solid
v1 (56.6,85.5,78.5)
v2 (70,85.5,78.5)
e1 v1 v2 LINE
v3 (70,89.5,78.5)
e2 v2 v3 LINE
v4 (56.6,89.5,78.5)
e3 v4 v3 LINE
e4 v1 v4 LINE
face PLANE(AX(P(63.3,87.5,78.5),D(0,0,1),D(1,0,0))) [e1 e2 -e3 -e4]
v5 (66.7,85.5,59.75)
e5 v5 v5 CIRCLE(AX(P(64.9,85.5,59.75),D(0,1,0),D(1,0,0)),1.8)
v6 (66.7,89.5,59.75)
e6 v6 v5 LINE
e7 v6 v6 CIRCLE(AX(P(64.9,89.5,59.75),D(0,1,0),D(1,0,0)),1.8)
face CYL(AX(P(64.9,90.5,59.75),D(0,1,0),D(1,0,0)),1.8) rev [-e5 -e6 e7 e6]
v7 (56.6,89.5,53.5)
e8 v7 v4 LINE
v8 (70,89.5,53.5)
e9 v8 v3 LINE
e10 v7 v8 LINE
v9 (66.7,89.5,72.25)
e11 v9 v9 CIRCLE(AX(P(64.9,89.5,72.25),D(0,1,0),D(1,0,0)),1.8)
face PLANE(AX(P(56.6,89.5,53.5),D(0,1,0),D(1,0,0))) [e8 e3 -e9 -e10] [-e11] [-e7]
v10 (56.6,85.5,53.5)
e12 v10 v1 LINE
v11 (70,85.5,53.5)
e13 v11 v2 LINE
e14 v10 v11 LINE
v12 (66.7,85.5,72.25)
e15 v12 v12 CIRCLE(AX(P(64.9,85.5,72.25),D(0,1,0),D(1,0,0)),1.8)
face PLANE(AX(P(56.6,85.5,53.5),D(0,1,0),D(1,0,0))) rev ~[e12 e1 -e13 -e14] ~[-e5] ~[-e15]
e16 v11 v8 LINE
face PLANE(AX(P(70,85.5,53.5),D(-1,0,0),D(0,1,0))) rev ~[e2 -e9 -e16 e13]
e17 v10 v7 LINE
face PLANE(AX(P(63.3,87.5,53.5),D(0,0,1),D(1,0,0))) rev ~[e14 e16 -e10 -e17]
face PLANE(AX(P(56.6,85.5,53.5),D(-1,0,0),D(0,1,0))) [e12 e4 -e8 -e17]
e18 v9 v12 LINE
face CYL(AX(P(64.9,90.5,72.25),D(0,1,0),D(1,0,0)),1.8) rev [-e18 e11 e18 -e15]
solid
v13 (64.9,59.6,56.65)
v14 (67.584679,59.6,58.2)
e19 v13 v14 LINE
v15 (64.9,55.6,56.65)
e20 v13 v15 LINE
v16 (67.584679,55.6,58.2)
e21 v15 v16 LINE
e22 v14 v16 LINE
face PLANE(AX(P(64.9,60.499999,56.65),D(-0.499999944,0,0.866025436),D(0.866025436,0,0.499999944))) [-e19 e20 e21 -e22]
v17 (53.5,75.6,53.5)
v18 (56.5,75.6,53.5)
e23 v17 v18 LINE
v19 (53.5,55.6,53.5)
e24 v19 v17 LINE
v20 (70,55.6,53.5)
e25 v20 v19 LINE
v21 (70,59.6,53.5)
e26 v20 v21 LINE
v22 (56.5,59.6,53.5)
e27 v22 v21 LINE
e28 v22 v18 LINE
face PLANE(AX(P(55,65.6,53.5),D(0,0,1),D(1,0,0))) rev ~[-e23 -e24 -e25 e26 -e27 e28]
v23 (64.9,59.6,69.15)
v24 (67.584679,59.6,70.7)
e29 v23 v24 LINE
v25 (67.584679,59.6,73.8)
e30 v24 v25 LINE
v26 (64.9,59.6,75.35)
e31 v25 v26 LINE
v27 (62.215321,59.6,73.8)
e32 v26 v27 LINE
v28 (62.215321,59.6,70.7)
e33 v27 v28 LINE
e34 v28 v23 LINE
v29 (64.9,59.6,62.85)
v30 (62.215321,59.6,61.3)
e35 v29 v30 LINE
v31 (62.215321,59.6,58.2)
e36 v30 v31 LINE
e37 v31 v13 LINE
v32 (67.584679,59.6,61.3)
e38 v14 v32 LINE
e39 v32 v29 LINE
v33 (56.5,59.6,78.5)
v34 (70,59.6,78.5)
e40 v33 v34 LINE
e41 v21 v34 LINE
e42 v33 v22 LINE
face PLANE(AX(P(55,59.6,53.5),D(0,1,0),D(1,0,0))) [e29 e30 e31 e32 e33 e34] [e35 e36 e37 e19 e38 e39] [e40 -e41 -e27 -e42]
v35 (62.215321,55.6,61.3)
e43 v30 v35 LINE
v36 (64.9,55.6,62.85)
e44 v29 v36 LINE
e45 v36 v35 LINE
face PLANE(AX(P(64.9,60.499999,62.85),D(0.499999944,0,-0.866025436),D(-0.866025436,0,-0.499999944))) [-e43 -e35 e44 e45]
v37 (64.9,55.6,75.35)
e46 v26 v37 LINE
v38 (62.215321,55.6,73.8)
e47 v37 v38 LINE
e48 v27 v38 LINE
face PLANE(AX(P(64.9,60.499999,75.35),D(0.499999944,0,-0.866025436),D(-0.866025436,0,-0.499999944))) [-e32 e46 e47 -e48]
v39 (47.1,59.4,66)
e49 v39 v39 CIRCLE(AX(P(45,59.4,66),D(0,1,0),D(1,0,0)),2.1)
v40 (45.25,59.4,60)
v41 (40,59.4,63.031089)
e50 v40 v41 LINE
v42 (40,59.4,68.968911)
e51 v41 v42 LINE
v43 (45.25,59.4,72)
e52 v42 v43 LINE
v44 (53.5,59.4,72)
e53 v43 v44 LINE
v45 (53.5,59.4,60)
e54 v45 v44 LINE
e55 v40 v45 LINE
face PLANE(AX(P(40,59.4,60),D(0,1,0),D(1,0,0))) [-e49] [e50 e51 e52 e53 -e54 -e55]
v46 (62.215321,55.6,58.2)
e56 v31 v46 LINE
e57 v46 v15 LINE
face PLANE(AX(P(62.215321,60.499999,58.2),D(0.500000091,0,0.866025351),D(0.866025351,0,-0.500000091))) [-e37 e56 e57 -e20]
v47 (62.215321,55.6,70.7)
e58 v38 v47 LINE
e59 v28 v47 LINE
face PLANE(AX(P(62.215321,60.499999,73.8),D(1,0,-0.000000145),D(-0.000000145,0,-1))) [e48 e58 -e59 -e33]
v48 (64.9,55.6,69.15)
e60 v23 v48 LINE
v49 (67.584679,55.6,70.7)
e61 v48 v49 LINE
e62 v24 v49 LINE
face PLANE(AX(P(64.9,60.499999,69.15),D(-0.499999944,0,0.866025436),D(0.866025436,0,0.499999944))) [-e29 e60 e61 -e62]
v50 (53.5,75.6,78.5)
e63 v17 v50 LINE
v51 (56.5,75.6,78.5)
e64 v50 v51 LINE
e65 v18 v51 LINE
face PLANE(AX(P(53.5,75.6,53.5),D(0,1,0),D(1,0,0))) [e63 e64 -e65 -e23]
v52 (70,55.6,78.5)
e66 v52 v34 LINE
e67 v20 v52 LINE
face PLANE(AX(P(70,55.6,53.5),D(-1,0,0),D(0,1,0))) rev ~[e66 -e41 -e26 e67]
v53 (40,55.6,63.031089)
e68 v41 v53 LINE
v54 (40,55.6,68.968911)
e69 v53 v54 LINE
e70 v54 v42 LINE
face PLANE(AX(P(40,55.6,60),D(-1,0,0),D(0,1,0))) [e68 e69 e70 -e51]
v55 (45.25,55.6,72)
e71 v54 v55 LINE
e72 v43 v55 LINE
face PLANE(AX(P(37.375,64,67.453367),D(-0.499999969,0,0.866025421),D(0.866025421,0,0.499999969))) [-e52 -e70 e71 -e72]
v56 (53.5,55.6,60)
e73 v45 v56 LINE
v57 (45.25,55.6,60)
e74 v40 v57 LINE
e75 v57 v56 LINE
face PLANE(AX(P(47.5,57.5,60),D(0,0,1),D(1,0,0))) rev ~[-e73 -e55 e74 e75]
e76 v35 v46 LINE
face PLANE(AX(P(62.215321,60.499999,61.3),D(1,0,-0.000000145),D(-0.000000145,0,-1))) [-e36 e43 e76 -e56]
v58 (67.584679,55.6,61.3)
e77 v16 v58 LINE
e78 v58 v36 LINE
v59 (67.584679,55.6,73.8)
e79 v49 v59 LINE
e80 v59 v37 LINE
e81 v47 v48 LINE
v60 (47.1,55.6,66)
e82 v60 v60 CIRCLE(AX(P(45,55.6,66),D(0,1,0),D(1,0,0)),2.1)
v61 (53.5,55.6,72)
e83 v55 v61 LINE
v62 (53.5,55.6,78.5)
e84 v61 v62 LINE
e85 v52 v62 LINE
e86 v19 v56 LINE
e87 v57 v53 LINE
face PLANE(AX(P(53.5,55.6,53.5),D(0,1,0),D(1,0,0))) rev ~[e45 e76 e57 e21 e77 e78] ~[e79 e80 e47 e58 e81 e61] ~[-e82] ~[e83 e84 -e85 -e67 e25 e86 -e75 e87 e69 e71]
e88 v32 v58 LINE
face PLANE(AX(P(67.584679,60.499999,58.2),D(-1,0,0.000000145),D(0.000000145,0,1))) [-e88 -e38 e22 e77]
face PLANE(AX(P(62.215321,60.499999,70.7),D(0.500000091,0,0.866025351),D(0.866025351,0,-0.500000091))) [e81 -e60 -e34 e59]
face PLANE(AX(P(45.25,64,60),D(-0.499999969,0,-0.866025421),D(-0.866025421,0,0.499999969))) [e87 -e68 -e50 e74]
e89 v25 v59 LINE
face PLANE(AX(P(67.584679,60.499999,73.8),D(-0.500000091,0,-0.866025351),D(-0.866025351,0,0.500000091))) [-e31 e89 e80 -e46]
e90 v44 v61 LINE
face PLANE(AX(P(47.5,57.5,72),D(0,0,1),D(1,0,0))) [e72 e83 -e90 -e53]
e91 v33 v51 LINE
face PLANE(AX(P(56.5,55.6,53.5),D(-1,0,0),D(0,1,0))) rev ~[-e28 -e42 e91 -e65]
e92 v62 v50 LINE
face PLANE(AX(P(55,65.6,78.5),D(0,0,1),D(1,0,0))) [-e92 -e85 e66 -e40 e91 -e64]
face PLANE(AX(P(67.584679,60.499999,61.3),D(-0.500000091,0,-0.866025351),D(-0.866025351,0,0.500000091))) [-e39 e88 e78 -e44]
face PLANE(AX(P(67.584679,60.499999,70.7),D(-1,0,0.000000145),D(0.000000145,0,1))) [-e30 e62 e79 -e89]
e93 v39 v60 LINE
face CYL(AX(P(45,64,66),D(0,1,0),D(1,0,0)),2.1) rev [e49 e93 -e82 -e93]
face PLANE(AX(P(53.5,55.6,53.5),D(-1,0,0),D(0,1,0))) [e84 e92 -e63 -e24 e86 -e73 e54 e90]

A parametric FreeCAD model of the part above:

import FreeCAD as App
import Part
import Sketcher
Q = App.Units.Quantity


def add_polygon(sketch, points):
    """Adds a closed chain of lines whose ends are joined by coincident constraints."""
    first, n = sketch.GeometryCount, len(points)
    for a, b in zip(points, points[1:] + points[:1]):
        sketch.addGeometry(Part.LineSegment(App.Vector(*a, 0), App.Vector(*b, 0)), False)
    for i in range(n):
        sketch.addConstraint(Sketcher.Constraint("Coincident", first + i, 2, first + (i + 1) % n, 1))

doc = App.newDocument("Part")
body = doc.addObject("PartDesign::Body", "Body")

# Sketch on XZ plane
sketch1 = body.newObject("Sketcher::SketchObject", "Sketch")
sketch1.AttachmentSupport = (doc.getObject("XZ_Plane"), [""])
sketch1.MapMode = "FlatFace"
sketch1.AttachmentOffset = App.Placement(App.Vector(0, 0, -64), App.Rotation())
add_polygon(sketch1, [(45.25, 72), (37.375, 76.546633), (37.375, 67.453367)])  # lines 0-2
sketch1.addConstraint([
    Sketcher.Constraint("Vertical", 1),
    Sketcher.Constraint("Equal", 0, 2),
    Sketcher.Constraint("Angle", 0, Q("150.000002 deg")),
    Sketcher.Constraint("DistanceY", -1, 1, 2, 2, 72.0),
    Sketcher.Constraint("DistanceX", -1, 1, 2, 2, 45.25),
    Sketcher.Constraint("DistanceX", -1, 1, 0, 2, 37.375),
])
pad1 = body.newObject("PartDesign::Pad", "Pad")
pad1.Profile = sketch1
pad1.Length = 13
body2 = doc.addObject("PartDesign::Body", "Body001")

# Sketch on XZ plane
sketch2 = body2.newObject("Sketcher::SketchObject", "Sketch001")
sketch2.AttachmentSupport = (doc.getObject("XZ_Plane001"), [""])
sketch2.MapMode = "FlatFace"
sketch2.AttachmentOffset = App.Placement(App.Vector(0, 0, -64), App.Rotation())
add_polygon(sketch2, [(45.25, 60), (37.375, 64.546633), (37.375, 55.453367)])  # lines 0-2
sketch2.addConstraint([
    Sketcher.Constraint("Vertical", 1),
    Sketcher.Constraint("Equal", 0, 2),
    Sketcher.Constraint("Angle", 0, Q("150.000002 deg")),
    Sketcher.Constraint("DistanceY", -1, 1, 2, 2, 60.0),
    Sketcher.Constraint("DistanceX", -1, 1, 2, 2, 45.25),
    Sketcher.Constraint("DistanceX", -1, 1, 0, 2, 37.375),
])
pad2 = body2.newObject("PartDesign::Pad", "Pad001")
pad2.Profile = sketch2
pad2.Length = 13
body3 = doc.addObject("PartDesign::Body", "Body002")

# Sketch on XY plane
sketch3 = body3.newObject("Sketcher::SketchObject", "Sketch002")
sketch3.AttachmentSupport = (doc.getObject("XY_Plane002"), [""])
sketch3.MapMode = "FlatFace"
add_polygon(sketch3, [(3.1, 0), (1.55, 2.684679), (-1.55, 2.684679), (-3.1, 0), (-1.55, -2.684679), (1.55, -2.684679)])  # lines 0-5
sketch3.addConstraint([
    Sketcher.Constraint("Horizontal", 1),
    Sketcher.Constraint("Horizontal", 4),
    Sketcher.Constraint("Symmetric", 0, 2, 3, 2, -1, 1),
    Sketcher.Constraint("Symmetric", 2, 2, 5, 2, -1, 1),
    Sketcher.Constraint("PointOnObject", 2, 2, -1),
    Sketcher.Constraint("Parallel", 2, 5),
    Sketcher.Constraint("Vertical", 1, 2, 3, 2),
    Sketcher.Constraint("Angle", 0, Q("119.999998 deg")),
    Sketcher.Constraint("DistanceX", 1, 2, 1, 1, 3.1),
    Sketcher.Constraint("Distance", 0, 3.1),
])
pad3 = body3.newObject("PartDesign::Pad", "Pad002")
pad3.Profile = sketch3
pad3.Length = 6
body4 = doc.addObject("PartDesign::Body", "Body003")
doc.recompute()

body3.Placement = App.Placement(App.Vector(0, 0, 0), App.Rotation(App.Vector(1, 0, 0), 90))
boolean = body4.newObject("PartDesign::Boolean", "Boolean")
boolean.Type = "Fuse"
boolean.addObjects([body3])
body5 = doc.addObject("PartDesign::Body", "Body004")
doc.recompute()

body4.Placement = App.Placement(App.Vector(0, 0, 0), App.Rotation(App.Vector(0, 1, 0), 30.000006))
boolean2 = body5.newObject("PartDesign::Boolean", "Boolean001")
boolean2.Type = "Fuse"
boolean2.addObjects([body4])
body6 = doc.addObject("PartDesign::Body", "Body005")
doc.recompute()

body5.Placement = App.Placement(App.Vector(64.9, 60.499999, 72.25), App.Rotation(App.Vector(0, 0, 1), 0))
boolean3 = body6.newObject("PartDesign::Boolean", "Boolean002")
boolean3.Type = "Fuse"
boolean3.addObjects([body5])
body7 = doc.addObject("PartDesign::Body", "Body006")

# Sketch on XZ plane
sketch4 = body7.newObject("Sketcher::SketchObject", "Sketch003")
sketch4.AttachmentSupport = (doc.getObject("XZ_Plane006"), [""])
sketch4.MapMode = "FlatFace"
sketch4.AttachmentOffset = App.Placement(App.Vector(0, 0, -90.5), App.Rotation())
sketch4.addGeometry(Part.Circle(App.Vector(64.9, 72.25, 0), App.Vector(0, 0, 1), 1.8), False)
sketch4.addConstraint([
    Sketcher.Constraint("Diameter", 0, 3.6),
    Sketcher.Constraint("DistanceX", -1, 1, 0, 3, 64.9),
    Sketcher.Constraint("DistanceY", -1, 1, 0, 3, 72.25),
])
pad4 = body7.newObject("PartDesign::Pad", "Pad003")
pad4.Profile = sketch4
pad4.Length = 6
body8 = doc.addObject("PartDesign::Body", "Body007")

# Sketch on XY plane
sketch5 = body8.newObject("Sketcher::SketchObject", "Sketch004")
sketch5.AttachmentSupport = (doc.getObject("XY_Plane007"), [""])
sketch5.MapMode = "FlatFace"
add_polygon(sketch5, [(3.1, 0), (1.55, 2.684679), (-1.55, 2.684679), (-3.1, 0), (-1.55, -2.684679), (1.55, -2.684679)])  # lines 0-5
sketch5.addConstraint([
    Sketcher.Constraint("Horizontal", 1),
    Sketcher.Constraint("Horizontal", 4),
    Sketcher.Constraint("Symmetric", 0, 2, 3, 2, -1, 1),
    Sketcher.Constraint("Symmetric", 2, 2, 5, 2, -1, 1),
    Sketcher.Constraint("PointOnObject", 2, 2, -1),
    Sketcher.Constraint("Parallel", 2, 5),
    Sketcher.Constraint("Vertical", 1, 2, 3, 2),
    Sketcher.Constraint("Angle", 0, Q("119.999998 deg")),
    Sketcher.Constraint("DistanceX", 1, 2, 1, 1, 3.1),
    Sketcher.Constraint("Distance", 0, 3.1),
])
pad5 = body8.newObject("PartDesign::Pad", "Pad004")
pad5.Profile = sketch5
pad5.Length = 6
body9 = doc.addObject("PartDesign::Body", "Body008")
doc.recompute()

body8.Placement = App.Placement(App.Vector(0, 0, 0), App.Rotation(App.Vector(1, 0, 0), 90))
boolean4 = body9.newObject("PartDesign::Boolean", "Boolean003")
boolean4.Type = "Fuse"
boolean4.addObjects([body8])
body10 = doc.addObject("PartDesign::Body", "Body009")
doc.recompute()

body9.Placement = App.Placement(App.Vector(0, 0, 0), App.Rotation(App.Vector(0, 1, 0), 30.000006))
boolean5 = body10.newObject("PartDesign::Boolean", "Boolean004")
boolean5.Type = "Fuse"
boolean5.addObjects([body9])
body11 = doc.addObject("PartDesign::Body", "Body010")
doc.recompute()

body10.Placement = App.Placement(App.Vector(64.9, 60.499999, 59.75), App.Rotation(App.Vector(0, 0, 1), 0))
boolean6 = body11.newObject("PartDesign::Boolean", "Boolean005")
boolean6.Type = "Fuse"
boolean6.addObjects([body10])
body12 = doc.addObject("PartDesign::Body", "Body011")

# Sketch on XZ plane
sketch6 = body12.newObject("Sketcher::SketchObject", "Sketch005")
sketch6.AttachmentSupport = (doc.getObject("XZ_Plane011"), [""])
sketch6.MapMode = "FlatFace"
sketch6.AttachmentOffset = App.Placement(App.Vector(0, 0, -90.5), App.Rotation())
sketch6.addGeometry(Part.Circle(App.Vector(64.9, 59.75, 0), App.Vector(0, 0, 1), 1.8), False)
sketch6.addConstraint([
    Sketcher.Constraint("Diameter", 0, 3.6),
    Sketcher.Constraint("DistanceX", -1, 1, 0, 3, 64.9),
    Sketcher.Constraint("DistanceY", -1, 1, 0, 3, 59.75),
])
pad6 = body12.newObject("PartDesign::Pad", "Pad005")
pad6.Profile = sketch6
pad6.Length = 6
body13 = doc.addObject("PartDesign::Body", "Body012")
body13.AllowCompound = True

# Sketch on XZ plane
sketch7 = body13.newObject("Sketcher::SketchObject", "Sketch006")
sketch7.AttachmentSupport = (doc.getObject("XZ_Plane012"), [""])
sketch7.MapMode = "FlatFace"
sketch7.AttachmentOffset = App.Placement(App.Vector(0, 0, -64), App.Rotation())
sketch7.addGeometry(Part.Circle(App.Vector(45, 66, 0), App.Vector(0, 0, 1), 2.1), False)
sketch7.addConstraint([
    Sketcher.Constraint("Diameter", 0, 4.2),
    Sketcher.Constraint("DistanceX", -1, 1, 0, 3, 45.0),
    Sketcher.Constraint("DistanceY", -1, 1, 0, 3, 66.0),
])
pad7 = body13.newObject("PartDesign::Pad", "Pad006")
pad7.Profile = sketch7
pad7.Length = 13
doc.recompute()

boolean7 = body13.newObject("PartDesign::Boolean", "Boolean006")
boolean7.Type = "Fuse"
boolean7.addObjects([body])
doc.recompute()

boolean8 = body13.newObject("PartDesign::Boolean", "Boolean007")
boolean8.Type = "Fuse"
boolean8.addObjects([body2])
doc.recompute()

boolean9 = body13.newObject("PartDesign::Boolean", "Boolean008")
boolean9.Type = "Fuse"
boolean9.addObjects([body6])
doc.recompute()

boolean10 = body13.newObject("PartDesign::Boolean", "Boolean009")
boolean10.Type = "Fuse"
boolean10.addObjects([body7])
doc.recompute()

boolean11 = body13.newObject("PartDesign::Boolean", "Boolean010")
boolean11.Type = "Fuse"
boolean11.addObjects([body11])
doc.recompute()

boolean12 = body13.newObject("PartDesign::Boolean", "Boolean011")
boolean12.Type = "Fuse"
boolean12.addObjects([body12])
body14 = doc.addObject("PartDesign::Body", "Body013")

# Sketch on XY plane
sketch8 = body14.newObject("Sketcher::SketchObject", "Sketch007")
sketch8.AttachmentSupport = (doc.getObject("XY_Plane013"), [""])
sketch8.MapMode = "FlatFace"
sketch8.AttachmentOffset = App.Placement(App.Vector(0, 0, 53.5), App.Rotation())
add_polygon(sketch8, [(53.5, 75.6), (53.5, 55.6), (56.5, 55.6), (56.5, 75.6)])  # lines 0-3
sketch8.addConstraint([
    Sketcher.Constraint("Vertical", 0),
    Sketcher.Constraint("Horizontal", 1),
    Sketcher.Constraint("Vertical", 2),
    Sketcher.Constraint("Horizontal", 3),
    Sketcher.Constraint("DistanceX", 1, 1, 1, 2, 3.0),
    Sketcher.Constraint("DistanceY", 0, 2, 0, 1, 20.0),
    Sketcher.Constraint("DistanceX", -1, 1, 0, 2, 53.5),
    Sketcher.Constraint("DistanceY", -1, 1, 0, 2, 55.6),
])
pad8 = body14.newObject("PartDesign::Pad", "Pad007")
pad8.Profile = sketch8
pad8.Length = 25
body15 = doc.addObject("PartDesign::Body", "Body014")

# Sketch on XY plane
sketch9 = body15.newObject("Sketcher::SketchObject", "Sketch008")
sketch9.AttachmentSupport = (doc.getObject("XY_Plane014"), [""])
sketch9.MapMode = "FlatFace"
sketch9.AttachmentOffset = App.Placement(App.Vector(0, 0, 53.5), App.Rotation())
add_polygon(sketch9, [(55, 59.6), (55, 55.6), (70, 55.6), (70, 59.6)])  # lines 0-3
sketch9.addConstraint([
    Sketcher.Constraint("Vertical", 0),
    Sketcher.Constraint("Horizontal", 1),
    Sketcher.Constraint("Vertical", 2),
    Sketcher.Constraint("Horizontal", 3),
    Sketcher.Constraint("DistanceX", 1, 1, 1, 2, 15.0),
    Sketcher.Constraint("DistanceY", 0, 2, 0, 1, 4.0),
    Sketcher.Constraint("DistanceX", -1, 1, 0, 2, 55.0),
    Sketcher.Constraint("DistanceY", -1, 1, 0, 2, 55.6),
])
pad9 = body15.newObject("PartDesign::Pad", "Pad008")
pad9.Profile = sketch9
pad9.Length = 25
body16 = doc.addObject("PartDesign::Body", "Body015")

# Sketch on XY plane
sketch10 = body16.newObject("Sketcher::SketchObject", "Sketch009")
sketch10.AttachmentSupport = (doc.getObject("XY_Plane015"), [""])
sketch10.MapMode = "FlatFace"
sketch10.AttachmentOffset = App.Placement(App.Vector(0, 0, 53.5), App.Rotation())
add_polygon(sketch10, [(56.6, 89.5), (56.6, 85.5), (70, 85.5), (70, 89.5)])  # lines 0-3
sketch10.addConstraint([
    Sketcher.Constraint("Vertical", 0),
    Sketcher.Constraint("Horizontal", 1),
    Sketcher.Constraint("Vertical", 2),
    Sketcher.Constraint("Horizontal", 3),
    Sketcher.Constraint("DistanceY", 0, 2, 0, 1, 4.0),
    Sketcher.Constraint("DistanceX", 1, 1, 1, 2, 13.4),
    Sketcher.Constraint("DistanceX", -1, 1, 1, 2, 70.0),
    Sketcher.Constraint("DistanceY", -1, 1, 0, 2, 85.5),
])
pad10 = body16.newObject("PartDesign::Pad", "Pad009")
pad10.Profile = sketch10
pad10.Length = 25
body17 = doc.addObject("PartDesign::Body", "Body016")
body17.AllowCompound = True

# Sketch on XY plane
sketch11 = body17.newObject("Sketcher::SketchObject", "Sketch010")
sketch11.AttachmentSupport = (doc.getObject("XY_Plane016"), [""])
sketch11.MapMode = "FlatFace"
sketch11.AttachmentOffset = App.Placement(App.Vector(0, 0, 60), App.Rotation())
add_polygon(sketch11, [(40, 59.4), (40, 55.6), (55, 55.6), (55, 59.4)])  # lines 0-3
sketch11.addConstraint([
    Sketcher.Constraint("Vertical", 0),
    Sketcher.Constraint("Horizontal", 1),
    Sketcher.Constraint("Vertical", 2),
    Sketcher.Constraint("Horizontal", 3),
    Sketcher.Constraint("DistanceX", 1, 1, 1, 2, 15.0),
    Sketcher.Constraint("DistanceY", 0, 2, 0, 1, 3.8),
    Sketcher.Constraint("DistanceX", -1, 1, 0, 2, 40.0),
    Sketcher.Constraint("DistanceY", -1, 1, 0, 2, 55.6),
])
pad11 = body17.newObject("PartDesign::Pad", "Pad010")
pad11.Profile = sketch11
pad11.Length = 12
doc.recompute()

boolean13 = body17.newObject("PartDesign::Boolean", "Boolean012")
boolean13.Type = "Fuse"
boolean13.addObjects([body14])
doc.recompute()

boolean14 = body17.newObject("PartDesign::Boolean", "Boolean013")
boolean14.Type = "Fuse"
boolean14.addObjects([body15])
doc.recompute()

boolean15 = body17.newObject("PartDesign::Boolean", "Boolean014")
boolean15.Type = "Fuse"
boolean15.addObjects([body16])
doc.recompute()

boolean16 = body17.newObject("PartDesign::Boolean", "Boolean015")
boolean16.Type = "Cut"
boolean16.addObjects([body13])

doc.recompute()
